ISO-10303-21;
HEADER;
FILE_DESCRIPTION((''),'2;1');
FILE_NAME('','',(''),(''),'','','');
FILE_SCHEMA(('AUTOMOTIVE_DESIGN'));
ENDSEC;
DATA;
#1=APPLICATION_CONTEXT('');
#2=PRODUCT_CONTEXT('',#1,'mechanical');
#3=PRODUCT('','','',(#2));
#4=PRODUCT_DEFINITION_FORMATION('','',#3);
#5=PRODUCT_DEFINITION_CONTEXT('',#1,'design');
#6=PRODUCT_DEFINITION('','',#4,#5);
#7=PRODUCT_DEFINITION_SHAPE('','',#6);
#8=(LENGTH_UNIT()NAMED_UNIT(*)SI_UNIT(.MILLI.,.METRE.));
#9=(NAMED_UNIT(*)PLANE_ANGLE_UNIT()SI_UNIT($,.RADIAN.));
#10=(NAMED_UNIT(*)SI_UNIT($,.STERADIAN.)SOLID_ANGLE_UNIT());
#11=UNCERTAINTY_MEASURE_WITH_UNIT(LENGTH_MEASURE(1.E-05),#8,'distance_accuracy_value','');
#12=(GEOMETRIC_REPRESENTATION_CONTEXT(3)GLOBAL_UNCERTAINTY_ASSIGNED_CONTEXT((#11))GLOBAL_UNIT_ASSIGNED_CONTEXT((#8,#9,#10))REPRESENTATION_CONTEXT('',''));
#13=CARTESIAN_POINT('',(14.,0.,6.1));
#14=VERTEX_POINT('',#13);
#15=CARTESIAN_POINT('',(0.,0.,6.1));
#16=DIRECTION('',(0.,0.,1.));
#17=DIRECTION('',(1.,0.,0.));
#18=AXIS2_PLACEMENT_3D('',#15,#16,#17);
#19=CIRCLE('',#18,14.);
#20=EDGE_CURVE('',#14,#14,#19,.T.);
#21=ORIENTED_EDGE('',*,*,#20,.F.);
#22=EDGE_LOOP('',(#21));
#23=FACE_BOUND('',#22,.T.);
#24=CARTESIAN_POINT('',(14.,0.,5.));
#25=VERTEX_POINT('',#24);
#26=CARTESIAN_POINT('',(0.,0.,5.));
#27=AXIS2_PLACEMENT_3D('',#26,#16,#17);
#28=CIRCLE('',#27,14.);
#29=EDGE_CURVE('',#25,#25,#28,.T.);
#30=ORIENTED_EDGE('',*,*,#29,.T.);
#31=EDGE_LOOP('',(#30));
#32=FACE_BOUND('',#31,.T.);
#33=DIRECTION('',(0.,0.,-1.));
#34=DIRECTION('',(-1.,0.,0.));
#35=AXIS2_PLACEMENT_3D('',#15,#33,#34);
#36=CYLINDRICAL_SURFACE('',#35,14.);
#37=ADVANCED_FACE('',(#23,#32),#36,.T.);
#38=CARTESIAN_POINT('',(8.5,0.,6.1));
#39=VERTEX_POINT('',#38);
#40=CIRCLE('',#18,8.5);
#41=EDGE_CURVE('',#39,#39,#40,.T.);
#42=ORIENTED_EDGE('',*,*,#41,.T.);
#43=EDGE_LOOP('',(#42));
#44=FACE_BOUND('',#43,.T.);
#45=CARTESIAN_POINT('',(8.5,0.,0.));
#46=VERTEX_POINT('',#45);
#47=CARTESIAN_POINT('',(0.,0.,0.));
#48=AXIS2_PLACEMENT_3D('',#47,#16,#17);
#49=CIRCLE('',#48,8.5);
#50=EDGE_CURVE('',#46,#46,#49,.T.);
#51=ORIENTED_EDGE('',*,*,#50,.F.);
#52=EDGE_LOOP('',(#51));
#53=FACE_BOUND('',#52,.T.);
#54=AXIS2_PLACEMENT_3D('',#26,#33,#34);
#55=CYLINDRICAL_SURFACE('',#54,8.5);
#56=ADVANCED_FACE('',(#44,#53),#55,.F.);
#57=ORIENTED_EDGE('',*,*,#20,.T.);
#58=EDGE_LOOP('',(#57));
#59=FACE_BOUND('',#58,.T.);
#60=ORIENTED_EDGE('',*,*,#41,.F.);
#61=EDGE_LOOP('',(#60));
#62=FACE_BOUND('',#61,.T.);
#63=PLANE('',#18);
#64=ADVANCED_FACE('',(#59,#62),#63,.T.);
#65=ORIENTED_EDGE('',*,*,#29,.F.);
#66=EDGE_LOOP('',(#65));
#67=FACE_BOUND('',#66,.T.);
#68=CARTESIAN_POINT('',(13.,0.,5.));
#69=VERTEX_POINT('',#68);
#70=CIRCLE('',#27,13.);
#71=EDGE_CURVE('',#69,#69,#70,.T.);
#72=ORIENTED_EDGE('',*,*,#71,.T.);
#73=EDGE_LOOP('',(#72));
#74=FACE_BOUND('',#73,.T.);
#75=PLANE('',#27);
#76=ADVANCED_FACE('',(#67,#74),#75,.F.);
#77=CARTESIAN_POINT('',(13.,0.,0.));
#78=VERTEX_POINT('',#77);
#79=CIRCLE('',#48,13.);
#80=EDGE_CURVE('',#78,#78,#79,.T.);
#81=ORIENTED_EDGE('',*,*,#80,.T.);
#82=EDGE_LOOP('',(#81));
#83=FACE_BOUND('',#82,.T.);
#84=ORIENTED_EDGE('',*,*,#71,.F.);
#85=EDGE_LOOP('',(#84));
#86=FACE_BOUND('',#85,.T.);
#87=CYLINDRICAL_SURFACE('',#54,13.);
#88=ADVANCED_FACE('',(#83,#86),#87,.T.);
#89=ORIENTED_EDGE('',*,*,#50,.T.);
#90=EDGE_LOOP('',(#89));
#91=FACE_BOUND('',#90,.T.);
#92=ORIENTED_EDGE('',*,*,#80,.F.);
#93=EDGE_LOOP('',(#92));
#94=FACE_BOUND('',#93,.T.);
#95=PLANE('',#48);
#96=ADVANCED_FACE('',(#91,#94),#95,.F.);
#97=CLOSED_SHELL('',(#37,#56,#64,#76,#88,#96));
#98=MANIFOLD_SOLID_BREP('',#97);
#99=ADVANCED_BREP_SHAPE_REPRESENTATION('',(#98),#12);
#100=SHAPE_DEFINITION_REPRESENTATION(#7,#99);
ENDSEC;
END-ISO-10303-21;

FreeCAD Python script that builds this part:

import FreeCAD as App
import Part
import Sketcher

doc = App.newDocument("Part")
params = doc.addObject("Spreadsheet::Sheet", "Params")
for row, (alias, value) in enumerate([
    ("sketch1_diameter", "26 mm"),
    ("sketch1_diameter2", "17 mm"),
    ("pad1_length", "5 mm"),
    ("sketch2_diameter", "28 mm"),
    ("sketch2_diameter2", "17 mm"),
    ("pad2_length", "1.1 mm"),
], start=1):
    params.set(f"A{row}", alias)
    params.set(f"B{row}", "=" + value)
    params.setAlias(f"B{row}", alias)

body = doc.addObject("PartDesign::Body", "Body")

# Sketch on XY plane
sketch1 = doc.addObject("Sketcher::SketchObject", "Sketch")
body.addObject(sketch1)
sketch1.AttachmentSupport = (doc.XY_Plane, [""])
sketch1.MapMode = "FlatFace"
sketch1.addGeometry([
    Part.Circle(App.Vector(0, 0, 0), App.Vector(0, 0, 1), 13),
    Part.Circle(App.Vector(0, 0, 0), App.Vector(0, 0, 1), 8),
], False)
sketch1.addConstraint([
    Sketcher.Constraint("Coincident", 0, 3, -1, 1),
    Sketcher.Constraint("Coincident", 1, 3, -1, 1),
    Sketcher.Constraint("Diameter", 0, 26.0),
    Sketcher.Constraint("Diameter", 1, 17.0),
])
sketch1.setExpression("Constraints[2]", "Params.sketch1_diameter")
sketch1.setExpression("Constraints[3]", "Params.sketch1_diameter2")
pad1 = doc.addObject("PartDesign::Pad", "Pad")
body.addObject(pad1)
pad1.Profile = sketch1
pad1.setExpression("Length", "Params.pad1_length")

# Sketch on XY plane
sketch2 = doc.addObject("Sketcher::SketchObject", "Sketch001")
body.addObject(sketch2)
sketch2.AttachmentSupport = (doc.XY_Plane, [""])
sketch2.MapMode = "FlatFace"
sketch2.AttachmentOffset = App.Placement(App.Vector(0, 0, 5), App.Rotation())
sketch2.addGeometry([
    Part.Circle(App.Vector(0, 0, 0), App.Vector(0, 0, 1), 14),
    Part.Circle(App.Vector(0, 0, 0), App.Vector(0, 0, 1), 8),
], False)
sketch2.addConstraint([
    Sketcher.Constraint("Coincident", 0, 3, -1, 1),
    Sketcher.Constraint("Coincident", 1, 3, -1, 1),
    Sketcher.Constraint("Diameter", 0, 28.0),
    Sketcher.Constraint("Diameter", 1, 17.0),
])
sketch2.setExpression("Constraints[2]", "Params.sketch2_diameter")
sketch2.setExpression("Constraints[3]", "Params.sketch2_diameter2")
pad2 = doc.addObject("PartDesign::Pad", "Pad001")
body.addObject(pad2)
pad2.Profile = sketch2
pad2.setExpression("Length", "Params.pad2_length")

doc.recompute()
